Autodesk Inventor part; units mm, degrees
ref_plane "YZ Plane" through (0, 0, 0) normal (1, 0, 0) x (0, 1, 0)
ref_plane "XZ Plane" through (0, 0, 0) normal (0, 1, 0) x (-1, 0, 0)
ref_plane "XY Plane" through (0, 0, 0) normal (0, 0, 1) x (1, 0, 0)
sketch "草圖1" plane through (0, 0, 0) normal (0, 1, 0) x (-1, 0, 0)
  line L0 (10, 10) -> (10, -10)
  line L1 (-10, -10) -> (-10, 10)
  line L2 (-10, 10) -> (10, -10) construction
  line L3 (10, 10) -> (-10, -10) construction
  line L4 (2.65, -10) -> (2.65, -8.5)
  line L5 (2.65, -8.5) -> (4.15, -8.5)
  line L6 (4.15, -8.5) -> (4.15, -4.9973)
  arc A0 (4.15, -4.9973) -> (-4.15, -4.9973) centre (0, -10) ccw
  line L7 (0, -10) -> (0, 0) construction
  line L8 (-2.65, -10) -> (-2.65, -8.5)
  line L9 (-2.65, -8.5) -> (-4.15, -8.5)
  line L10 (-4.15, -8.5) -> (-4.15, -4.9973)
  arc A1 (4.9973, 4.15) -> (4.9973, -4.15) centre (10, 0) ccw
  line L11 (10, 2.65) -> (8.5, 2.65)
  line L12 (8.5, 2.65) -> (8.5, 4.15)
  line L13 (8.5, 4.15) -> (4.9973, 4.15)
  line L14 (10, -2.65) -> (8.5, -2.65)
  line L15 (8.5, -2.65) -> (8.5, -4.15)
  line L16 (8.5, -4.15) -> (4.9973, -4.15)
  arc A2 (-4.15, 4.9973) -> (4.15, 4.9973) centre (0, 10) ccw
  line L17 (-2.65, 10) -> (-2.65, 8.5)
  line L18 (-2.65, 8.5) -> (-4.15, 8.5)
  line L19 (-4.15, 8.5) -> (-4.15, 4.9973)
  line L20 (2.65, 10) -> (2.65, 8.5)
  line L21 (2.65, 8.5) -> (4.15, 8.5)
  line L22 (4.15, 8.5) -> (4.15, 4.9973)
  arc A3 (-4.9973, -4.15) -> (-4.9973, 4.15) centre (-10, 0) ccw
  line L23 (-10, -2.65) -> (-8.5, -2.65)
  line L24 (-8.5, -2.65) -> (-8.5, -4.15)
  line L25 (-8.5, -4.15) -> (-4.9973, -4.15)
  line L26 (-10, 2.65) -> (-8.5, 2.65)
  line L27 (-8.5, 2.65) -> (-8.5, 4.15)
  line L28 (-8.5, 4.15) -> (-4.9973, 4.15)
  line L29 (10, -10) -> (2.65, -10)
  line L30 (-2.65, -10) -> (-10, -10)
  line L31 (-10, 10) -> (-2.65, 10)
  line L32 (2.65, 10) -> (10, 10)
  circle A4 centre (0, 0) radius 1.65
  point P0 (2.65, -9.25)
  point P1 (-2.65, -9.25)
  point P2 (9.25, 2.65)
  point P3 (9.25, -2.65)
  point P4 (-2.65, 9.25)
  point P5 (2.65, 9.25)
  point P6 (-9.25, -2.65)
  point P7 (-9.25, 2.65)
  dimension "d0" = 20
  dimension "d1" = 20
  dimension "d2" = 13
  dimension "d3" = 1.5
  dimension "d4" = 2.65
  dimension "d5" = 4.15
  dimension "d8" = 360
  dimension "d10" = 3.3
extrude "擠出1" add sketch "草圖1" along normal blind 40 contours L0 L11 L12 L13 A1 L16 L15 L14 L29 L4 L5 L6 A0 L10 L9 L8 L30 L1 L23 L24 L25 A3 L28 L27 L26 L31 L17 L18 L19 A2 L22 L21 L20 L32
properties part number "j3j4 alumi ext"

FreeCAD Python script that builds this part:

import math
import FreeCAD as App
import Part
import Sketcher

V = App.Vector
Q = App.Units.Quantity

doc = App.newDocument("Part")
body = doc.addObject("PartDesign::Body", "Body")

# Sketch on XZ plane
sketch1 = body.newObject("Sketcher::SketchObject", "Sketch")
sketch1.AttachmentSupport = (doc.getObject("XZ_Plane"), [""])
sketch1.MapMode = "FlatFace"
sketch1.addGeometry(Part.LineSegment(V(-10, 2.6, 0), V(-10, 10, 0)), False)
sketch1.addGeometry(Part.LineSegment(V(-10, 10, 0), V(-2.6, 10, 0)), False)
sketch1.addGeometry(Part.LineSegment(V(-2.6, 10, 0), V(-2.6, 8.5, 0)), False)
sketch1.addGeometry(Part.LineSegment(V(-2.6, 8.5, 0), V(-4.2, 8.5, 0)), False)
sketch1.addGeometry(Part.LineSegment(V(-4.2, 8.5, 0), V(-4.2, 5, 0)), False)
sketch1.addGeometry(Part.ArcOfCircle(Part.Circle(V(0, 10, 0), V(0, 0, 1), 6.5), math.radians(-130), math.radians(-50)), False)
sketch1.addGeometry(Part.LineSegment(V(4.2, 5, 0), V(4.2, 8.5, 0)), False)
sketch1.addGeometry(Part.LineSegment(V(4.2, 8.5, 0), V(2.6, 8.5, 0)), False)
sketch1.addGeometry(Part.LineSegment(V(2.6, 8.5, 0), V(2.6, 10, 0)), False)
sketch1.addGeometry(Part.LineSegment(V(2.6, 10, 0), V(10, 10, 0)), False)
sketch1.addGeometry(Part.LineSegment(V(10, 10, 0), V(10, 2.6, 0)), False)
sketch1.addGeometry(Part.LineSegment(V(10, 2.6, 0), V(8.5, 2.6, 0)), False)
sketch1.addGeometry(Part.LineSegment(V(8.5, 2.6, 0), V(8.5, 4.2, 0)), False)
sketch1.addGeometry(Part.LineSegment(V(8.5, 4.2, 0), V(5, 4.2, 0)), False)
sketch1.addGeometry(Part.ArcOfCircle(Part.Circle(V(10, 0, 0), V(0, 0, 1), 6.5), math.radians(140), math.radians(220)), False)
sketch1.addGeometry(Part.LineSegment(V(5, -4.2, 0), V(8.5, -4.2, 0)), False)
sketch1.addGeometry(Part.LineSegment(V(8.5, -4.2, 0), V(8.5, -2.6, 0)), False)
sketch1.addGeometry(Part.LineSegment(V(8.5, -2.6, 0), V(10, -2.6, 0)), False)
sketch1.addGeometry(Part.LineSegment(V(10, -2.6, 0), V(10, -10, 0)), False)
sketch1.addGeometry(Part.LineSegment(V(10, -10, 0), V(2.6, -10, 0)), False)
sketch1.addGeometry(Part.LineSegment(V(2.6, -10, 0), V(2.6, -8.5, 0)), False)
sketch1.addGeometry(Part.LineSegment(V(2.6, -8.5, 0), V(4.2, -8.5, 0)), False)
sketch1.addGeometry(Part.LineSegment(V(4.2, -8.5, 0), V(4.2, -5, 0)), False)
sketch1.addGeometry(Part.ArcOfCircle(Part.Circle(V(0, -10, 0), V(0, 0, 1), 6.5), math.radians(50), math.radians(130)), False)
sketch1.addGeometry(Part.LineSegment(V(-4.2, -5, 0), V(-4.2, -8.5, 0)), False)
sketch1.addGeometry(Part.LineSegment(V(-4.2, -8.5, 0), V(-2.6, -8.5, 0)), False)
sketch1.addGeometry(Part.LineSegment(V(-2.6, -8.5, 0), V(-2.6, -10, 0)), False)
sketch1.addGeometry(Part.LineSegment(V(-2.6, -10, 0), V(-10, -10, 0)), False)
sketch1.addGeometry(Part.LineSegment(V(-10, -10, 0), V(-10, -2.6, 0)), False)
sketch1.addGeometry(Part.LineSegment(V(-10, -2.6, 0), V(-8.5, -2.6, 0)), False)
sketch1.addGeometry(Part.LineSegment(V(-8.5, -2.6, 0), V(-8.5, -4.2, 0)), False)
sketch1.addGeometry(Part.LineSegment(V(-8.5, -4.2, 0), V(-5, -4.2, 0)), False)
sketch1.addGeometry(Part.ArcOfCircle(Part.Circle(V(-10, 0, 0), V(0, 0, 1), 6.5), math.radians(-40), math.radians(40)), False)
sketch1.addGeometry(Part.LineSegment(V(-5, 4.2, 0), V(-8.5, 4.2, 0)), False)
sketch1.addGeometry(Part.LineSegment(V(-8.5, 4.2, 0), V(-8.5, 2.6, 0)), False)
sketch1.addGeometry(Part.LineSegment(V(-8.5, 2.6, 0), V(-10, 2.6, 0)), False)
sketch1.addGeometry(Part.Circle(V(0, 0, 0), V(0, 0, 1), 1.6), False)
sketch1.addConstraint(Sketcher.Constraint("Coincident", 0, 2, 1, 1))
sketch1.addConstraint(Sketcher.Constraint("Coincident", 1, 2, 2, 1))
sketch1.addConstraint(Sketcher.Constraint("Coincident", 2, 2, 3, 1))
sketch1.addConstraint(Sketcher.Constraint("Coincident", 3, 2, 4, 1))
sketch1.addConstraint(Sketcher.Constraint("Coincident", 4, 2, 5, 1))
sketch1.addConstraint(Sketcher.Constraint("Coincident", 5, 2, 6, 1))
sketch1.addConstraint(Sketcher.Constraint("Coincident", 6, 2, 7, 1))
sketch1.addConstraint(Sketcher.Constraint("Coincident", 7, 2, 8, 1))
sketch1.addConstraint(Sketcher.Constraint("Coincident", 8, 2, 9, 1))
sketch1.addConstraint(Sketcher.Constraint("Coincident", 9, 2, 10, 1))
sketch1.addConstraint(Sketcher.Constraint("Coincident", 10, 2, 11, 1))
sketch1.addConstraint(Sketcher.Constraint("Coincident", 11, 2, 12, 1))
sketch1.addConstraint(Sketcher.Constraint("Coincident", 12, 2, 13, 1))
sketch1.addConstraint(Sketcher.Constraint("Coincident", 13, 2, 14, 1))
sketch1.addConstraint(Sketcher.Constraint("Coincident", 14, 2, 15, 1))
sketch1.addConstraint(Sketcher.Constraint("Coincident", 15, 2, 16, 1))
sketch1.addConstraint(Sketcher.Constraint("Coincident", 16, 2, 17, 1))
sketch1.addConstraint(Sketcher.Constraint("Coincident", 17, 2, 18, 1))
sketch1.addConstraint(Sketcher.Constraint("Coincident", 18, 2, 19, 1))
sketch1.addConstraint(Sketcher.Constraint("Coincident", 19, 2, 20, 1))
sketch1.addConstraint(Sketcher.Constraint("Coincident", 20, 2, 21, 1))
sketch1.addConstraint(Sketcher.Constraint("Coincident", 21, 2, 22, 1))
sketch1.addConstraint(Sketcher.Constraint("Coincident", 22, 2, 23, 1))
sketch1.addConstraint(Sketcher.Constraint("Coincident", 23, 2, 24, 1))
sketch1.addConstraint(Sketcher.Constraint("Coincident", 24, 2, 25, 1))
sketch1.addConstraint(Sketcher.Constraint("Coincident", 25, 2, 26, 1))
sketch1.addConstraint(Sketcher.Constraint("Coincident", 26, 2, 27, 1))
sketch1.addConstraint(Sketcher.Constraint("Coincident", 27, 2, 28, 1))
sketch1.addConstraint(Sketcher.Constraint("Coincident", 28, 2, 29, 1))
sketch1.addConstraint(Sketcher.Constraint("Coincident", 29, 2, 30, 1))
sketch1.addConstraint(Sketcher.Constraint("Coincident", 30, 2, 31, 1))
sketch1.addConstraint(Sketcher.Constraint("Coincident", 31, 2, 32, 1))
sketch1.addConstraint(Sketcher.Constraint("Coincident", 32, 2, 33, 1))
sketch1.addConstraint(Sketcher.Constraint("Coincident", 33, 2, 34, 1))
sketch1.addConstraint(Sketcher.Constraint("Coincident", 34, 2, 35, 1))
sketch1.addConstraint(Sketcher.Constraint("Coincident", 35, 2, 0, 1))
sketch1.addConstraint(Sketcher.Constraint("Vertical", 0))
sketch1.addConstraint(Sketcher.Constraint("Horizontal", 1))
sketch1.addConstraint(Sketcher.Constraint("Vertical", 2))
sketch1.addConstraint(Sketcher.Constraint("Horizontal", 3))
sketch1.addConstraint(Sketcher.Constraint("Vertical", 4))
sketch1.addConstraint(Sketcher.Constraint("Vertical", 6))
sketch1.addConstraint(Sketcher.Constraint("Horizontal", 7))
sketch1.addConstraint(Sketcher.Constraint("Vertical", 8))
sketch1.addConstraint(Sketcher.Constraint("Horizontal", 9))
sketch1.addConstraint(Sketcher.Constraint("Vertical", 10))
sketch1.addConstraint(Sketcher.Constraint("Horizontal", 11))
sketch1.addConstraint(Sketcher.Constraint("Vertical", 12))
sketch1.addConstraint(Sketcher.Constraint("Horizontal", 13))
sketch1.addConstraint(Sketcher.Constraint("Horizontal", 15))
sketch1.addConstraint(Sketcher.Constraint("Vertical", 16))
sketch1.addConstraint(Sketcher.Constraint("Horizontal", 17))
sketch1.addConstraint(Sketcher.Constraint("Vertical", 18))
sketch1.addConstraint(Sketcher.Constraint("Horizontal", 19))
sketch1.addConstraint(Sketcher.Constraint("Vertical", 20))
sketch1.addConstraint(Sketcher.Constraint("Horizontal", 21))
sketch1.addConstraint(Sketcher.Constraint("Vertical", 22))
sketch1.addConstraint(Sketcher.Constraint("Vertical", 24))
sketch1.addConstraint(Sketcher.Constraint("Horizontal", 25))
sketch1.addConstraint(Sketcher.Constraint("Vertical", 26))
sketch1.addConstraint(Sketcher.Constraint("Horizontal", 27))
sketch1.addConstraint(Sketcher.Constraint("Vertical", 28))
sketch1.addConstraint(Sketcher.Constraint("Horizontal", 29))
sketch1.addConstraint(Sketcher.Constraint("Vertical", 30))
sketch1.addConstraint(Sketcher.Constraint("Horizontal", 31))
sketch1.addConstraint(Sketcher.Constraint("Horizontal", 33))
sketch1.addConstraint(Sketcher.Constraint("Vertical", 34))
sketch1.addConstraint(Sketcher.Constraint("Horizontal", 35))
sketch1.addConstraint(Sketcher.Constraint("Coincident", 36, 3, -1, 1))
sketch1.addConstraint(Sketcher.Constraint("Equal", 5, 14))
sketch1.addConstraint(Sketcher.Constraint("Equal", 14, 23))
sketch1.addConstraint(Sketcher.Constraint("Equal", 23, 32))
sketch1.addConstraint(Sketcher.Constraint("Symmetric", 5, 3, 23, 3, -1, 1))
sketch1.addConstraint(Sketcher.Constraint("Symmetric", 14, 3, 32, 3, -1, 1))
sketch1.addConstraint(Sketcher.Constraint("Symmetric", 0, 2, 18, 2, -1, 1))
sketch1.addConstraint(Sketcher.Constraint("Symmetric", 2, 2, 20, 2, -1, 1))
sketch1.addConstraint(Sketcher.Constraint("Symmetric", 6, 2, 24, 2, -1, 1))
sketch1.addConstraint(Sketcher.Constraint("Symmetric", 8, 2, 26, 2, -1, 1))
sketch1.addConstraint(Sketcher.Constraint("Symmetric", 10, 2, 28, 2, -1, 1))
sketch1.addConstraint(Sketcher.Constraint("Symmetric", 12, 2, 30, 2, -1, 1))
sketch1.addConstraint(Sketcher.Constraint("Symmetric", 15, 2, 33, 2, -1, 1))
sketch1.addConstraint(Sketcher.Constraint("Symmetric", 4, 2, 5, 2, -2))
sketch1.addConstraint(Sketcher.Constraint("Symmetric", 2, 2, 7, 2, -2))
sketch1.addConstraint(Sketcher.Constraint("Symmetric", 0, 2, 9, 2, -2))
sketch1.addConstraint(Sketcher.Constraint("Symmetric", 16, 2, 29, 2, -2))
sketch1.addConstraint(Sketcher.Constraint("Symmetric", 14, 2, 31, 2, -2))
sketch1.addConstraint(Sketcher.Constraint("Horizontal", 5, 3, 0, 2))
sketch1.addConstraint(Sketcher.Constraint("Horizontal", 22, 2, 23, 2))
sketch1.addConstraint(Sketcher.Constraint("Horizontal", 11, 2, 34, 2))
sketch1.addConstraint(Sketcher.Constraint("Vertical", 32, 3, 0, 2))
sketch1.addConstraint(Sketcher.Constraint("Equal", 7, 11))
sketch1.addConstraint(Sketcher.Constraint("Equal", 27, 0))
sketch1.addConstraint(Sketcher.Constraint("Equal", 35, 2))
sketch1.addConstraint(Sketcher.Constraint("Equal", 33, 4))
sketch1.addConstraint(Sketcher.Constraint("Equal", 8, 12))
sketch1.addConstraint(Sketcher.Constraint("Diameter", 36, Q("3.3 mm")))
sketch1.addConstraint(Sketcher.Constraint("Radius", 5, Q("6.5 mm")))
sketch1.addConstraint(Sketcher.Constraint("DistanceX", 3, 2, 3, 1, Q("1.5 mm")))
sketch1.addConstraint(Sketcher.Constraint("DistanceY", 23, 3, 5, 3, Q("20 mm")))
sketch1.addConstraint(Sketcher.Constraint("DistanceX", 1, 2, -1, 1, Q("2.65 mm")))
pad1 = body.newObject("PartDesign::Pad", "Pad")
pad1.Profile = sketch1
pad1.Length = 40
pad1.Reversed = True

doc.recompute()
